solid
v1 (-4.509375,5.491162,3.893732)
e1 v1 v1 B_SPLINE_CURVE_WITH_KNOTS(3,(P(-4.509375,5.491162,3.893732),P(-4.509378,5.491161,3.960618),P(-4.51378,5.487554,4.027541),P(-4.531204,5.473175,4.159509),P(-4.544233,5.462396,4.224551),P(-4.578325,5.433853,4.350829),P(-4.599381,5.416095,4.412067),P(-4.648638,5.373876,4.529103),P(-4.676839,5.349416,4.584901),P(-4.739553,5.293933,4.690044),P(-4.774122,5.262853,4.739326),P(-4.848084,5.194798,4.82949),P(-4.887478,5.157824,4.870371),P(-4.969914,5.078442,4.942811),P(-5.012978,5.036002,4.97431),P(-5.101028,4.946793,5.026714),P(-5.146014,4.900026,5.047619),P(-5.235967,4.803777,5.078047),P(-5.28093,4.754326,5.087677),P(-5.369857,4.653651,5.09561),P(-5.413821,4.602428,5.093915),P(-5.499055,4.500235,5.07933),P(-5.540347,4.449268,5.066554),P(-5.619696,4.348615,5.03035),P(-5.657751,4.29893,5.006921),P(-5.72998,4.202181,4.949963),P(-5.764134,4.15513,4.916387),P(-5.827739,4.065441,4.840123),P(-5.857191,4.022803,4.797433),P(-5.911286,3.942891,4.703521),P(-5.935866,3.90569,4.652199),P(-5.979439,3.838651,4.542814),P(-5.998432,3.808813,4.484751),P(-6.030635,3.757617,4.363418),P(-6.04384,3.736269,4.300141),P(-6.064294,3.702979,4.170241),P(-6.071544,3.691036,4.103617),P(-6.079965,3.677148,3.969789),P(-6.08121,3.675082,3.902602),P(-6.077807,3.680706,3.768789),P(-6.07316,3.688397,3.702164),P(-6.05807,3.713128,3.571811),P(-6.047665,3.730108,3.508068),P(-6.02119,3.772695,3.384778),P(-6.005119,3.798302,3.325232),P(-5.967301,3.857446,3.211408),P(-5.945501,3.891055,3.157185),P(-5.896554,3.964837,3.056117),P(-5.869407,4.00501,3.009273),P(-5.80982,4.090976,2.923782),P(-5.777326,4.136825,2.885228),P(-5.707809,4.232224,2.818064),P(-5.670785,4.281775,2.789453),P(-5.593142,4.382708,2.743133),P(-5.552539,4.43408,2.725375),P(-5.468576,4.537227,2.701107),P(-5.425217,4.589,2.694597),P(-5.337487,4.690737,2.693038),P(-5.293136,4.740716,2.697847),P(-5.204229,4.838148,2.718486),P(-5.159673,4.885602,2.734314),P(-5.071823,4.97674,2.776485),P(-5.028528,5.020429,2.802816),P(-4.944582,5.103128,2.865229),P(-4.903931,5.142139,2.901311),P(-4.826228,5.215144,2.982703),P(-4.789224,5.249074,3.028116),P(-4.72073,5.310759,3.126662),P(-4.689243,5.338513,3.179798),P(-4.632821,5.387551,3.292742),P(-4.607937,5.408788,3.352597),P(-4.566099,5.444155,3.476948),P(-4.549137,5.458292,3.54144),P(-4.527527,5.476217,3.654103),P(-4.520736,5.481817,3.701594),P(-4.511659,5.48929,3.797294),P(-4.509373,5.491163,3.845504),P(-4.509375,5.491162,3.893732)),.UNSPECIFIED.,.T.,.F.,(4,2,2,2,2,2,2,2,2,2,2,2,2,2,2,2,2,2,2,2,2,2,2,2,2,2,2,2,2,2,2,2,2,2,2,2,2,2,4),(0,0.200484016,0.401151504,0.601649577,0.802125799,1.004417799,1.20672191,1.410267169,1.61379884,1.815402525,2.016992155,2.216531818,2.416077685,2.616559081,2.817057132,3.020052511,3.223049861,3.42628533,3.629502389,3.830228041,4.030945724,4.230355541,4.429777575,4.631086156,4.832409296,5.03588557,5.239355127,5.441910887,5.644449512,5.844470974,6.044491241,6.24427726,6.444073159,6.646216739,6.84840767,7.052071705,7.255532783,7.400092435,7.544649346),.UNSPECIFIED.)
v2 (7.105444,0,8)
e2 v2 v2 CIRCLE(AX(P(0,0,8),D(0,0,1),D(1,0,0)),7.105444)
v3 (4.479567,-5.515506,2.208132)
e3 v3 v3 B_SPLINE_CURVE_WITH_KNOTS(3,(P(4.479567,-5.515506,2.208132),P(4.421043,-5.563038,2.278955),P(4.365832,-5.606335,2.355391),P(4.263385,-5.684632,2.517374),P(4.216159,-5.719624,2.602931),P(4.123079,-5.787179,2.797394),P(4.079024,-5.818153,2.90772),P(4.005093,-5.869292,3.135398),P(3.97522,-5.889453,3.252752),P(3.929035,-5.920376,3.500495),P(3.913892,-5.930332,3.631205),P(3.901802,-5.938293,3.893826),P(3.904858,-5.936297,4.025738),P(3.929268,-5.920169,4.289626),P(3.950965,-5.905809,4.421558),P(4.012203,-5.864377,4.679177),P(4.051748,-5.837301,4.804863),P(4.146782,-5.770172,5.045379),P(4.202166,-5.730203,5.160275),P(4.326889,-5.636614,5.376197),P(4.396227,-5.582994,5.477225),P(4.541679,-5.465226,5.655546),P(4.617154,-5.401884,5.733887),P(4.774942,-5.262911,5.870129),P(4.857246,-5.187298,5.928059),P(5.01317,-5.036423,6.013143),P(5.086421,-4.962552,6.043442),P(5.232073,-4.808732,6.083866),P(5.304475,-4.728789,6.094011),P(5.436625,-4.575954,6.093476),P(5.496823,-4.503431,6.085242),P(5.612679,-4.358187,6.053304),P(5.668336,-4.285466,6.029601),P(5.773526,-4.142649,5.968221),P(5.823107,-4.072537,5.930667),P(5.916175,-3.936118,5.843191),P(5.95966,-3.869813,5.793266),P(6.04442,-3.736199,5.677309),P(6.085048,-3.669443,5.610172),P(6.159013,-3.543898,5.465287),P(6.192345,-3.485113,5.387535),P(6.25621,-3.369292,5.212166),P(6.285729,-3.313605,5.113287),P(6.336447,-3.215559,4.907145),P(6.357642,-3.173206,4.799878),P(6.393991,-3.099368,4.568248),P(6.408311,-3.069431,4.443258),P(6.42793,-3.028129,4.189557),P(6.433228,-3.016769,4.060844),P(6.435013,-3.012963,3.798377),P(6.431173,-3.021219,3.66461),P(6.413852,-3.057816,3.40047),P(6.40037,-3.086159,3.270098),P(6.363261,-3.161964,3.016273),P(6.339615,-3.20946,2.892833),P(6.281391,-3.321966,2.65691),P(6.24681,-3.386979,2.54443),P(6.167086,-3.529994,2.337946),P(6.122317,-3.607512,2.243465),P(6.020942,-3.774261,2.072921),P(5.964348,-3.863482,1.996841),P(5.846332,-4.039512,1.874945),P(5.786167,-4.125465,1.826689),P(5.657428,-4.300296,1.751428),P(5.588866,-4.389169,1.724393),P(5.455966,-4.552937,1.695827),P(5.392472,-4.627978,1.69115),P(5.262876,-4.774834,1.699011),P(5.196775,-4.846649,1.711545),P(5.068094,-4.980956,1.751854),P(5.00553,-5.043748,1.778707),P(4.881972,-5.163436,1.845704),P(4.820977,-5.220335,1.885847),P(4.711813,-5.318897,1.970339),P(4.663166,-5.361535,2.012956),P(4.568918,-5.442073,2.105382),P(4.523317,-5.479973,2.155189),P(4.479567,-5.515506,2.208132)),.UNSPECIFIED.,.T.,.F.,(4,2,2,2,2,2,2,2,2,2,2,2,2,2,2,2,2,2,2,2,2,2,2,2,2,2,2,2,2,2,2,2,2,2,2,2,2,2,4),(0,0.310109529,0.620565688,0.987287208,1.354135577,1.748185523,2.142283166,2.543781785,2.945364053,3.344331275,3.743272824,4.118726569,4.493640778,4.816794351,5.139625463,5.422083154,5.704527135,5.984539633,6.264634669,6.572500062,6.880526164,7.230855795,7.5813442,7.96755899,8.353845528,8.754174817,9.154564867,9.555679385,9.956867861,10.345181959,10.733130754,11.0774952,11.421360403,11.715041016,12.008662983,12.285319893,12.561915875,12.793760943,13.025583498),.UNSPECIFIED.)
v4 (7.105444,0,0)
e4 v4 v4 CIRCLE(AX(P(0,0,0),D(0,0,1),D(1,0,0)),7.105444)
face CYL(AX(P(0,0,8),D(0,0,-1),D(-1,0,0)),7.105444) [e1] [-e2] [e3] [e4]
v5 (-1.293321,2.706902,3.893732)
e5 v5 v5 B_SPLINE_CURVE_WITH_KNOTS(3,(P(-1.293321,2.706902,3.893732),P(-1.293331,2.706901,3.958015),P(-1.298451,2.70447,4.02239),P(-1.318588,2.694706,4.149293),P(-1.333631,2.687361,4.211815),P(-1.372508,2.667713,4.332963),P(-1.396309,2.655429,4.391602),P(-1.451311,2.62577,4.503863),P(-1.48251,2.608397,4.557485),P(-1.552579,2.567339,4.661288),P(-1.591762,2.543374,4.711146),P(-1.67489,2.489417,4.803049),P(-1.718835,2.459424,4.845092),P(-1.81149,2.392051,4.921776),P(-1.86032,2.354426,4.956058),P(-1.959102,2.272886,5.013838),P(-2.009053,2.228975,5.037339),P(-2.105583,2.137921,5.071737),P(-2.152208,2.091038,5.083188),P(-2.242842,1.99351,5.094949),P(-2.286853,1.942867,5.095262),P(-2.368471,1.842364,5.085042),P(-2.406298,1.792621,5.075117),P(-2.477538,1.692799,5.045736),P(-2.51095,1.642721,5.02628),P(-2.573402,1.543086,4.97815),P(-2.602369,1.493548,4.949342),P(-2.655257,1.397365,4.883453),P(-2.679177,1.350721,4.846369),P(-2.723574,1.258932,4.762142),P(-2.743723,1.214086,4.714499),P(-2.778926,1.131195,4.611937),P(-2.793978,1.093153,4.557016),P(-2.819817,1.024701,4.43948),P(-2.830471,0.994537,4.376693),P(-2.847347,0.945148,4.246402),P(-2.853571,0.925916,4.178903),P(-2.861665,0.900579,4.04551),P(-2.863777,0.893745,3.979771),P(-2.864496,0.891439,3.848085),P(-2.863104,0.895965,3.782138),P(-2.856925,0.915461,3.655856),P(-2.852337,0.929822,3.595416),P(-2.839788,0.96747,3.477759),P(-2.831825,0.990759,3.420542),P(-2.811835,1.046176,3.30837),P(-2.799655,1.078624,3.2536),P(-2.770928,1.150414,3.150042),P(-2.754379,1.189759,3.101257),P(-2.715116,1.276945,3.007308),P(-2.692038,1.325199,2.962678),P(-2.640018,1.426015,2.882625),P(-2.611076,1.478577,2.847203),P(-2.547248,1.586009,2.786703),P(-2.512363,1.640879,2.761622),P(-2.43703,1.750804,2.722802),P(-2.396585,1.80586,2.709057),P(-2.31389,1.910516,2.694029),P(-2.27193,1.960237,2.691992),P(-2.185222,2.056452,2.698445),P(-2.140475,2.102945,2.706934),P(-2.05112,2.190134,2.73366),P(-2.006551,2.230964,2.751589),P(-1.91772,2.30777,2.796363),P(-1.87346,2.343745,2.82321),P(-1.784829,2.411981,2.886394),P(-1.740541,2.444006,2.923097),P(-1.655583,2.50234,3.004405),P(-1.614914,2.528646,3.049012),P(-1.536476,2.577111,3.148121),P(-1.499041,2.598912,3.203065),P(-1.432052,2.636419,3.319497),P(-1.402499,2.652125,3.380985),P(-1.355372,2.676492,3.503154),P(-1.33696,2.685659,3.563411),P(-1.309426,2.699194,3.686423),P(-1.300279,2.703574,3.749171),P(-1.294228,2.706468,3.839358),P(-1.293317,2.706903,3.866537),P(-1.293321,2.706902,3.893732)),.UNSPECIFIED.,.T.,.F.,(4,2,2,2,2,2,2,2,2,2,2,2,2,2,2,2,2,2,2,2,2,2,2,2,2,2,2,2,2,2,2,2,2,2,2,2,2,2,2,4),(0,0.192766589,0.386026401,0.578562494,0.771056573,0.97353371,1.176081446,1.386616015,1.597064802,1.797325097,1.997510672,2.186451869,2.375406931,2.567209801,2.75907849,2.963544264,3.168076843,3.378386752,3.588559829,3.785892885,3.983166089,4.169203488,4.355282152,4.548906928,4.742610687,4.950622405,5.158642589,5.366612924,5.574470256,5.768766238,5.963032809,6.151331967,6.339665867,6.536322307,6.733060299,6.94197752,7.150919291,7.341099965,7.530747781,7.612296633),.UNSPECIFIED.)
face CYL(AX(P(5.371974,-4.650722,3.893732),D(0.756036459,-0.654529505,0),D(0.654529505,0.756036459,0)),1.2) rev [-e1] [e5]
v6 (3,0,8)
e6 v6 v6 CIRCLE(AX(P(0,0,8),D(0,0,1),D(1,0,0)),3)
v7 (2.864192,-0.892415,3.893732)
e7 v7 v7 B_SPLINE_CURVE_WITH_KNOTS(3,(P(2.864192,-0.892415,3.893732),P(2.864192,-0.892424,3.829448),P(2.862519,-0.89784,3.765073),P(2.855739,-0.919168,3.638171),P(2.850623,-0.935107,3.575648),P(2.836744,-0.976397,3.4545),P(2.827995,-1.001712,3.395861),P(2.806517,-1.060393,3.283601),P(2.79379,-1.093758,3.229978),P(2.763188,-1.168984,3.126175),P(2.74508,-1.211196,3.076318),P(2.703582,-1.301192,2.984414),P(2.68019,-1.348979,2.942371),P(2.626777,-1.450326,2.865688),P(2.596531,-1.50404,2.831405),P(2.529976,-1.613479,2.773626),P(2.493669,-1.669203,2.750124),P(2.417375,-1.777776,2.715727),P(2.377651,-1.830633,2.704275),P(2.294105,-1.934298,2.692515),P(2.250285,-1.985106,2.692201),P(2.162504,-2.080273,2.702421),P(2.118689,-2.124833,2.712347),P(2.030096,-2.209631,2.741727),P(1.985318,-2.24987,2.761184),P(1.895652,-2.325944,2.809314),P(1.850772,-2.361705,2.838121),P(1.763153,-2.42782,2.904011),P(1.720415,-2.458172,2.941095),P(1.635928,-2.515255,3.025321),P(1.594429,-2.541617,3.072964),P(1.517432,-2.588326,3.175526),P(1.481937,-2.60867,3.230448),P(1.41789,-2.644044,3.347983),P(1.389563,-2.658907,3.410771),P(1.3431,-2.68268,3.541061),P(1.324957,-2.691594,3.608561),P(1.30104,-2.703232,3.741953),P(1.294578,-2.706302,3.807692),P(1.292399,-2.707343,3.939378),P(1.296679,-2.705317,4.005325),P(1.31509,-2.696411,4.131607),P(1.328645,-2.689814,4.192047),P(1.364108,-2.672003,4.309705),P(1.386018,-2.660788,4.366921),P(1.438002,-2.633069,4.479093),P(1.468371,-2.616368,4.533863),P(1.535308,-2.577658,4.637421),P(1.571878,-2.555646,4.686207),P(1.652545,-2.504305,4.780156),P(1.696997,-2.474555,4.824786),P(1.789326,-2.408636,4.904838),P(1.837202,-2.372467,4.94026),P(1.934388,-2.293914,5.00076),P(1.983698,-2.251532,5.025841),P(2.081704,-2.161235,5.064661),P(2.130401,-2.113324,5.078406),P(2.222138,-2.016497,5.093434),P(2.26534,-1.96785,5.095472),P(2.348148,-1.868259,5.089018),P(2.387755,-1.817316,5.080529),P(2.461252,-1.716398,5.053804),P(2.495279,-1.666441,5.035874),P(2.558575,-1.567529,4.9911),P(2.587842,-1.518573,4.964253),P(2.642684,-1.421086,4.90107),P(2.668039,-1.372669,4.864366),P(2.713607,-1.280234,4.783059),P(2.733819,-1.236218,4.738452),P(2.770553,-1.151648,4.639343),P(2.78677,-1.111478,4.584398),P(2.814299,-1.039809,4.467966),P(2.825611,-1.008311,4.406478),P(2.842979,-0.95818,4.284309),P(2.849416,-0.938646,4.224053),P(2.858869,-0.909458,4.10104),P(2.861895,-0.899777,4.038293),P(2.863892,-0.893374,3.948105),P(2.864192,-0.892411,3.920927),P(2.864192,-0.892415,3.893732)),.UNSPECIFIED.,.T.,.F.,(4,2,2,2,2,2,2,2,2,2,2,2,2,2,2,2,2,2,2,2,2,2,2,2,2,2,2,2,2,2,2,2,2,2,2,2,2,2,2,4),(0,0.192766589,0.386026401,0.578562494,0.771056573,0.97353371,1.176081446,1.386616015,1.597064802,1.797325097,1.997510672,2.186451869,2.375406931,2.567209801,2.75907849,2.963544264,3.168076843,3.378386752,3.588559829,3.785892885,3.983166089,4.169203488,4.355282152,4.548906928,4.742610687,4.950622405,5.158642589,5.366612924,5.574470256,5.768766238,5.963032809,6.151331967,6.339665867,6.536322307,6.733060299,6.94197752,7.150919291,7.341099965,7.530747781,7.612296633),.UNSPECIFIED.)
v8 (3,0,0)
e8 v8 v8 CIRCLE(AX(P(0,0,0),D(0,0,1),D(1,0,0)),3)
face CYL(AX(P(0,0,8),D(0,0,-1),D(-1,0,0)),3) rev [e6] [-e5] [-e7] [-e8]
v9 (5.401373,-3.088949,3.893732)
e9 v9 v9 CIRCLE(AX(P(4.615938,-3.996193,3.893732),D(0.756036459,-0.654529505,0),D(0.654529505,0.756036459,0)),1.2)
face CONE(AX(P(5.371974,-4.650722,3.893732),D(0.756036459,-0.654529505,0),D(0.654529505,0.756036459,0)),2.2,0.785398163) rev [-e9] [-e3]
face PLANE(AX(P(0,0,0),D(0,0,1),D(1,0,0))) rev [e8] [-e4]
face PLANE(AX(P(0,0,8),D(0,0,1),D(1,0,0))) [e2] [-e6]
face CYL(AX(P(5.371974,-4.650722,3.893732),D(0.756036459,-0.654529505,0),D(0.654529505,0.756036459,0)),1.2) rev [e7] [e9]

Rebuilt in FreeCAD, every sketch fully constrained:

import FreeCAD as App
import Part
import Sketcher
Q = App.Units.Quantity

doc = App.newDocument("Part")
params = doc.addObject("Spreadsheet::Sheet", "Params")
for row, (alias, value) in enumerate([
    ("sketch1_diameter", "6 mm"),
    ("pad1_length", "8 mm"),
    ("sketch2_diameter", "2.4 mm"),
    ("hole_diameter", "2.4 mm"),
    ("hole_csink_diameter", "4.4 mm"),
], start=1):
    params.set(f"A{row}", alias)
    params.set(f"B{row}", "=" + value)
    params.setAlias(f"B{row}", alias)

body = doc.addObject("PartDesign::Body", "Body")

# Sketch on XY plane
sketch1 = doc.addObject("Sketcher::SketchObject", "Sketch")
body.addObject(sketch1)
sketch1.AttachmentSupport = (doc.XY_Plane, [""])
sketch1.MapMode = "FlatFace"
sketch1.addGeometry([
    Part.Circle(App.Vector(0, 0, 0), App.Vector(0, 0, 1), 7.1),
    Part.Circle(App.Vector(0, 0, 0), App.Vector(0, 0, 1), 3),
], False)
sketch1.addConstraint([
    Sketcher.Constraint("Coincident", 0, 3, -1, 1),
    Sketcher.Constraint("Coincident", 1, 3, -1, 1),
    Sketcher.Constraint("Diameter", 1, Q("6 mm")),
    Sketcher.Constraint("Diameter", 0, Q("14.210887 mm")),
])
sketch1.setExpression("Constraints[2]", "Params.sketch1_diameter")
pad1 = doc.addObject("PartDesign::Pad", "Pad")
body.addObject(pad1)
pad1.Profile = sketch1
pad1.setExpression("Length", "Params.pad1_length")

# Sketch on an angled plane
sketch2 = doc.addObject("Sketcher::SketchObject", "Sketch001")
body.addObject(sketch2)
sketch2.Placement = App.Placement(App.Vector(5.371974, -4.650722, 0), App.Rotation(App.Vector(0.654529505, 0.756036459, 0), App.Vector(0, 0, 1), App.Vector(0.756036459, -0.654529505, 0), "ZXY"))
sketch2.addGeometry(Part.Circle(App.Vector(0, 3.9, 0), App.Vector(0, 0, 1), 1.2), False)
sketch2.addConstraint([
    Sketcher.Constraint("PointOnObject", 0, 3, -2),
    Sketcher.Constraint("Diameter", 0, Q("2.4 mm")),
    Sketcher.Constraint("DistanceY", -1, 1, 0, 3, Q("3.893732 mm")),
])
sketch2.setExpression("Constraints[1]", "Params.sketch2_diameter")
doc.recompute()
hole = doc.addObject("PartDesign::Hole", "Hole")
body.addObject(hole)
hole.Profile = sketch2
hole.ThreadType = "None"
hole.setExpression("Diameter", "Params.hole_diameter")
hole.DepthType = "ThroughAll"
hole.HoleCutType = "Countersink"
hole.setExpression("HoleCutDiameter", "Params.hole_csink_diameter")
hole.HoleCutCountersinkAngle = 90

doc.recompute()
